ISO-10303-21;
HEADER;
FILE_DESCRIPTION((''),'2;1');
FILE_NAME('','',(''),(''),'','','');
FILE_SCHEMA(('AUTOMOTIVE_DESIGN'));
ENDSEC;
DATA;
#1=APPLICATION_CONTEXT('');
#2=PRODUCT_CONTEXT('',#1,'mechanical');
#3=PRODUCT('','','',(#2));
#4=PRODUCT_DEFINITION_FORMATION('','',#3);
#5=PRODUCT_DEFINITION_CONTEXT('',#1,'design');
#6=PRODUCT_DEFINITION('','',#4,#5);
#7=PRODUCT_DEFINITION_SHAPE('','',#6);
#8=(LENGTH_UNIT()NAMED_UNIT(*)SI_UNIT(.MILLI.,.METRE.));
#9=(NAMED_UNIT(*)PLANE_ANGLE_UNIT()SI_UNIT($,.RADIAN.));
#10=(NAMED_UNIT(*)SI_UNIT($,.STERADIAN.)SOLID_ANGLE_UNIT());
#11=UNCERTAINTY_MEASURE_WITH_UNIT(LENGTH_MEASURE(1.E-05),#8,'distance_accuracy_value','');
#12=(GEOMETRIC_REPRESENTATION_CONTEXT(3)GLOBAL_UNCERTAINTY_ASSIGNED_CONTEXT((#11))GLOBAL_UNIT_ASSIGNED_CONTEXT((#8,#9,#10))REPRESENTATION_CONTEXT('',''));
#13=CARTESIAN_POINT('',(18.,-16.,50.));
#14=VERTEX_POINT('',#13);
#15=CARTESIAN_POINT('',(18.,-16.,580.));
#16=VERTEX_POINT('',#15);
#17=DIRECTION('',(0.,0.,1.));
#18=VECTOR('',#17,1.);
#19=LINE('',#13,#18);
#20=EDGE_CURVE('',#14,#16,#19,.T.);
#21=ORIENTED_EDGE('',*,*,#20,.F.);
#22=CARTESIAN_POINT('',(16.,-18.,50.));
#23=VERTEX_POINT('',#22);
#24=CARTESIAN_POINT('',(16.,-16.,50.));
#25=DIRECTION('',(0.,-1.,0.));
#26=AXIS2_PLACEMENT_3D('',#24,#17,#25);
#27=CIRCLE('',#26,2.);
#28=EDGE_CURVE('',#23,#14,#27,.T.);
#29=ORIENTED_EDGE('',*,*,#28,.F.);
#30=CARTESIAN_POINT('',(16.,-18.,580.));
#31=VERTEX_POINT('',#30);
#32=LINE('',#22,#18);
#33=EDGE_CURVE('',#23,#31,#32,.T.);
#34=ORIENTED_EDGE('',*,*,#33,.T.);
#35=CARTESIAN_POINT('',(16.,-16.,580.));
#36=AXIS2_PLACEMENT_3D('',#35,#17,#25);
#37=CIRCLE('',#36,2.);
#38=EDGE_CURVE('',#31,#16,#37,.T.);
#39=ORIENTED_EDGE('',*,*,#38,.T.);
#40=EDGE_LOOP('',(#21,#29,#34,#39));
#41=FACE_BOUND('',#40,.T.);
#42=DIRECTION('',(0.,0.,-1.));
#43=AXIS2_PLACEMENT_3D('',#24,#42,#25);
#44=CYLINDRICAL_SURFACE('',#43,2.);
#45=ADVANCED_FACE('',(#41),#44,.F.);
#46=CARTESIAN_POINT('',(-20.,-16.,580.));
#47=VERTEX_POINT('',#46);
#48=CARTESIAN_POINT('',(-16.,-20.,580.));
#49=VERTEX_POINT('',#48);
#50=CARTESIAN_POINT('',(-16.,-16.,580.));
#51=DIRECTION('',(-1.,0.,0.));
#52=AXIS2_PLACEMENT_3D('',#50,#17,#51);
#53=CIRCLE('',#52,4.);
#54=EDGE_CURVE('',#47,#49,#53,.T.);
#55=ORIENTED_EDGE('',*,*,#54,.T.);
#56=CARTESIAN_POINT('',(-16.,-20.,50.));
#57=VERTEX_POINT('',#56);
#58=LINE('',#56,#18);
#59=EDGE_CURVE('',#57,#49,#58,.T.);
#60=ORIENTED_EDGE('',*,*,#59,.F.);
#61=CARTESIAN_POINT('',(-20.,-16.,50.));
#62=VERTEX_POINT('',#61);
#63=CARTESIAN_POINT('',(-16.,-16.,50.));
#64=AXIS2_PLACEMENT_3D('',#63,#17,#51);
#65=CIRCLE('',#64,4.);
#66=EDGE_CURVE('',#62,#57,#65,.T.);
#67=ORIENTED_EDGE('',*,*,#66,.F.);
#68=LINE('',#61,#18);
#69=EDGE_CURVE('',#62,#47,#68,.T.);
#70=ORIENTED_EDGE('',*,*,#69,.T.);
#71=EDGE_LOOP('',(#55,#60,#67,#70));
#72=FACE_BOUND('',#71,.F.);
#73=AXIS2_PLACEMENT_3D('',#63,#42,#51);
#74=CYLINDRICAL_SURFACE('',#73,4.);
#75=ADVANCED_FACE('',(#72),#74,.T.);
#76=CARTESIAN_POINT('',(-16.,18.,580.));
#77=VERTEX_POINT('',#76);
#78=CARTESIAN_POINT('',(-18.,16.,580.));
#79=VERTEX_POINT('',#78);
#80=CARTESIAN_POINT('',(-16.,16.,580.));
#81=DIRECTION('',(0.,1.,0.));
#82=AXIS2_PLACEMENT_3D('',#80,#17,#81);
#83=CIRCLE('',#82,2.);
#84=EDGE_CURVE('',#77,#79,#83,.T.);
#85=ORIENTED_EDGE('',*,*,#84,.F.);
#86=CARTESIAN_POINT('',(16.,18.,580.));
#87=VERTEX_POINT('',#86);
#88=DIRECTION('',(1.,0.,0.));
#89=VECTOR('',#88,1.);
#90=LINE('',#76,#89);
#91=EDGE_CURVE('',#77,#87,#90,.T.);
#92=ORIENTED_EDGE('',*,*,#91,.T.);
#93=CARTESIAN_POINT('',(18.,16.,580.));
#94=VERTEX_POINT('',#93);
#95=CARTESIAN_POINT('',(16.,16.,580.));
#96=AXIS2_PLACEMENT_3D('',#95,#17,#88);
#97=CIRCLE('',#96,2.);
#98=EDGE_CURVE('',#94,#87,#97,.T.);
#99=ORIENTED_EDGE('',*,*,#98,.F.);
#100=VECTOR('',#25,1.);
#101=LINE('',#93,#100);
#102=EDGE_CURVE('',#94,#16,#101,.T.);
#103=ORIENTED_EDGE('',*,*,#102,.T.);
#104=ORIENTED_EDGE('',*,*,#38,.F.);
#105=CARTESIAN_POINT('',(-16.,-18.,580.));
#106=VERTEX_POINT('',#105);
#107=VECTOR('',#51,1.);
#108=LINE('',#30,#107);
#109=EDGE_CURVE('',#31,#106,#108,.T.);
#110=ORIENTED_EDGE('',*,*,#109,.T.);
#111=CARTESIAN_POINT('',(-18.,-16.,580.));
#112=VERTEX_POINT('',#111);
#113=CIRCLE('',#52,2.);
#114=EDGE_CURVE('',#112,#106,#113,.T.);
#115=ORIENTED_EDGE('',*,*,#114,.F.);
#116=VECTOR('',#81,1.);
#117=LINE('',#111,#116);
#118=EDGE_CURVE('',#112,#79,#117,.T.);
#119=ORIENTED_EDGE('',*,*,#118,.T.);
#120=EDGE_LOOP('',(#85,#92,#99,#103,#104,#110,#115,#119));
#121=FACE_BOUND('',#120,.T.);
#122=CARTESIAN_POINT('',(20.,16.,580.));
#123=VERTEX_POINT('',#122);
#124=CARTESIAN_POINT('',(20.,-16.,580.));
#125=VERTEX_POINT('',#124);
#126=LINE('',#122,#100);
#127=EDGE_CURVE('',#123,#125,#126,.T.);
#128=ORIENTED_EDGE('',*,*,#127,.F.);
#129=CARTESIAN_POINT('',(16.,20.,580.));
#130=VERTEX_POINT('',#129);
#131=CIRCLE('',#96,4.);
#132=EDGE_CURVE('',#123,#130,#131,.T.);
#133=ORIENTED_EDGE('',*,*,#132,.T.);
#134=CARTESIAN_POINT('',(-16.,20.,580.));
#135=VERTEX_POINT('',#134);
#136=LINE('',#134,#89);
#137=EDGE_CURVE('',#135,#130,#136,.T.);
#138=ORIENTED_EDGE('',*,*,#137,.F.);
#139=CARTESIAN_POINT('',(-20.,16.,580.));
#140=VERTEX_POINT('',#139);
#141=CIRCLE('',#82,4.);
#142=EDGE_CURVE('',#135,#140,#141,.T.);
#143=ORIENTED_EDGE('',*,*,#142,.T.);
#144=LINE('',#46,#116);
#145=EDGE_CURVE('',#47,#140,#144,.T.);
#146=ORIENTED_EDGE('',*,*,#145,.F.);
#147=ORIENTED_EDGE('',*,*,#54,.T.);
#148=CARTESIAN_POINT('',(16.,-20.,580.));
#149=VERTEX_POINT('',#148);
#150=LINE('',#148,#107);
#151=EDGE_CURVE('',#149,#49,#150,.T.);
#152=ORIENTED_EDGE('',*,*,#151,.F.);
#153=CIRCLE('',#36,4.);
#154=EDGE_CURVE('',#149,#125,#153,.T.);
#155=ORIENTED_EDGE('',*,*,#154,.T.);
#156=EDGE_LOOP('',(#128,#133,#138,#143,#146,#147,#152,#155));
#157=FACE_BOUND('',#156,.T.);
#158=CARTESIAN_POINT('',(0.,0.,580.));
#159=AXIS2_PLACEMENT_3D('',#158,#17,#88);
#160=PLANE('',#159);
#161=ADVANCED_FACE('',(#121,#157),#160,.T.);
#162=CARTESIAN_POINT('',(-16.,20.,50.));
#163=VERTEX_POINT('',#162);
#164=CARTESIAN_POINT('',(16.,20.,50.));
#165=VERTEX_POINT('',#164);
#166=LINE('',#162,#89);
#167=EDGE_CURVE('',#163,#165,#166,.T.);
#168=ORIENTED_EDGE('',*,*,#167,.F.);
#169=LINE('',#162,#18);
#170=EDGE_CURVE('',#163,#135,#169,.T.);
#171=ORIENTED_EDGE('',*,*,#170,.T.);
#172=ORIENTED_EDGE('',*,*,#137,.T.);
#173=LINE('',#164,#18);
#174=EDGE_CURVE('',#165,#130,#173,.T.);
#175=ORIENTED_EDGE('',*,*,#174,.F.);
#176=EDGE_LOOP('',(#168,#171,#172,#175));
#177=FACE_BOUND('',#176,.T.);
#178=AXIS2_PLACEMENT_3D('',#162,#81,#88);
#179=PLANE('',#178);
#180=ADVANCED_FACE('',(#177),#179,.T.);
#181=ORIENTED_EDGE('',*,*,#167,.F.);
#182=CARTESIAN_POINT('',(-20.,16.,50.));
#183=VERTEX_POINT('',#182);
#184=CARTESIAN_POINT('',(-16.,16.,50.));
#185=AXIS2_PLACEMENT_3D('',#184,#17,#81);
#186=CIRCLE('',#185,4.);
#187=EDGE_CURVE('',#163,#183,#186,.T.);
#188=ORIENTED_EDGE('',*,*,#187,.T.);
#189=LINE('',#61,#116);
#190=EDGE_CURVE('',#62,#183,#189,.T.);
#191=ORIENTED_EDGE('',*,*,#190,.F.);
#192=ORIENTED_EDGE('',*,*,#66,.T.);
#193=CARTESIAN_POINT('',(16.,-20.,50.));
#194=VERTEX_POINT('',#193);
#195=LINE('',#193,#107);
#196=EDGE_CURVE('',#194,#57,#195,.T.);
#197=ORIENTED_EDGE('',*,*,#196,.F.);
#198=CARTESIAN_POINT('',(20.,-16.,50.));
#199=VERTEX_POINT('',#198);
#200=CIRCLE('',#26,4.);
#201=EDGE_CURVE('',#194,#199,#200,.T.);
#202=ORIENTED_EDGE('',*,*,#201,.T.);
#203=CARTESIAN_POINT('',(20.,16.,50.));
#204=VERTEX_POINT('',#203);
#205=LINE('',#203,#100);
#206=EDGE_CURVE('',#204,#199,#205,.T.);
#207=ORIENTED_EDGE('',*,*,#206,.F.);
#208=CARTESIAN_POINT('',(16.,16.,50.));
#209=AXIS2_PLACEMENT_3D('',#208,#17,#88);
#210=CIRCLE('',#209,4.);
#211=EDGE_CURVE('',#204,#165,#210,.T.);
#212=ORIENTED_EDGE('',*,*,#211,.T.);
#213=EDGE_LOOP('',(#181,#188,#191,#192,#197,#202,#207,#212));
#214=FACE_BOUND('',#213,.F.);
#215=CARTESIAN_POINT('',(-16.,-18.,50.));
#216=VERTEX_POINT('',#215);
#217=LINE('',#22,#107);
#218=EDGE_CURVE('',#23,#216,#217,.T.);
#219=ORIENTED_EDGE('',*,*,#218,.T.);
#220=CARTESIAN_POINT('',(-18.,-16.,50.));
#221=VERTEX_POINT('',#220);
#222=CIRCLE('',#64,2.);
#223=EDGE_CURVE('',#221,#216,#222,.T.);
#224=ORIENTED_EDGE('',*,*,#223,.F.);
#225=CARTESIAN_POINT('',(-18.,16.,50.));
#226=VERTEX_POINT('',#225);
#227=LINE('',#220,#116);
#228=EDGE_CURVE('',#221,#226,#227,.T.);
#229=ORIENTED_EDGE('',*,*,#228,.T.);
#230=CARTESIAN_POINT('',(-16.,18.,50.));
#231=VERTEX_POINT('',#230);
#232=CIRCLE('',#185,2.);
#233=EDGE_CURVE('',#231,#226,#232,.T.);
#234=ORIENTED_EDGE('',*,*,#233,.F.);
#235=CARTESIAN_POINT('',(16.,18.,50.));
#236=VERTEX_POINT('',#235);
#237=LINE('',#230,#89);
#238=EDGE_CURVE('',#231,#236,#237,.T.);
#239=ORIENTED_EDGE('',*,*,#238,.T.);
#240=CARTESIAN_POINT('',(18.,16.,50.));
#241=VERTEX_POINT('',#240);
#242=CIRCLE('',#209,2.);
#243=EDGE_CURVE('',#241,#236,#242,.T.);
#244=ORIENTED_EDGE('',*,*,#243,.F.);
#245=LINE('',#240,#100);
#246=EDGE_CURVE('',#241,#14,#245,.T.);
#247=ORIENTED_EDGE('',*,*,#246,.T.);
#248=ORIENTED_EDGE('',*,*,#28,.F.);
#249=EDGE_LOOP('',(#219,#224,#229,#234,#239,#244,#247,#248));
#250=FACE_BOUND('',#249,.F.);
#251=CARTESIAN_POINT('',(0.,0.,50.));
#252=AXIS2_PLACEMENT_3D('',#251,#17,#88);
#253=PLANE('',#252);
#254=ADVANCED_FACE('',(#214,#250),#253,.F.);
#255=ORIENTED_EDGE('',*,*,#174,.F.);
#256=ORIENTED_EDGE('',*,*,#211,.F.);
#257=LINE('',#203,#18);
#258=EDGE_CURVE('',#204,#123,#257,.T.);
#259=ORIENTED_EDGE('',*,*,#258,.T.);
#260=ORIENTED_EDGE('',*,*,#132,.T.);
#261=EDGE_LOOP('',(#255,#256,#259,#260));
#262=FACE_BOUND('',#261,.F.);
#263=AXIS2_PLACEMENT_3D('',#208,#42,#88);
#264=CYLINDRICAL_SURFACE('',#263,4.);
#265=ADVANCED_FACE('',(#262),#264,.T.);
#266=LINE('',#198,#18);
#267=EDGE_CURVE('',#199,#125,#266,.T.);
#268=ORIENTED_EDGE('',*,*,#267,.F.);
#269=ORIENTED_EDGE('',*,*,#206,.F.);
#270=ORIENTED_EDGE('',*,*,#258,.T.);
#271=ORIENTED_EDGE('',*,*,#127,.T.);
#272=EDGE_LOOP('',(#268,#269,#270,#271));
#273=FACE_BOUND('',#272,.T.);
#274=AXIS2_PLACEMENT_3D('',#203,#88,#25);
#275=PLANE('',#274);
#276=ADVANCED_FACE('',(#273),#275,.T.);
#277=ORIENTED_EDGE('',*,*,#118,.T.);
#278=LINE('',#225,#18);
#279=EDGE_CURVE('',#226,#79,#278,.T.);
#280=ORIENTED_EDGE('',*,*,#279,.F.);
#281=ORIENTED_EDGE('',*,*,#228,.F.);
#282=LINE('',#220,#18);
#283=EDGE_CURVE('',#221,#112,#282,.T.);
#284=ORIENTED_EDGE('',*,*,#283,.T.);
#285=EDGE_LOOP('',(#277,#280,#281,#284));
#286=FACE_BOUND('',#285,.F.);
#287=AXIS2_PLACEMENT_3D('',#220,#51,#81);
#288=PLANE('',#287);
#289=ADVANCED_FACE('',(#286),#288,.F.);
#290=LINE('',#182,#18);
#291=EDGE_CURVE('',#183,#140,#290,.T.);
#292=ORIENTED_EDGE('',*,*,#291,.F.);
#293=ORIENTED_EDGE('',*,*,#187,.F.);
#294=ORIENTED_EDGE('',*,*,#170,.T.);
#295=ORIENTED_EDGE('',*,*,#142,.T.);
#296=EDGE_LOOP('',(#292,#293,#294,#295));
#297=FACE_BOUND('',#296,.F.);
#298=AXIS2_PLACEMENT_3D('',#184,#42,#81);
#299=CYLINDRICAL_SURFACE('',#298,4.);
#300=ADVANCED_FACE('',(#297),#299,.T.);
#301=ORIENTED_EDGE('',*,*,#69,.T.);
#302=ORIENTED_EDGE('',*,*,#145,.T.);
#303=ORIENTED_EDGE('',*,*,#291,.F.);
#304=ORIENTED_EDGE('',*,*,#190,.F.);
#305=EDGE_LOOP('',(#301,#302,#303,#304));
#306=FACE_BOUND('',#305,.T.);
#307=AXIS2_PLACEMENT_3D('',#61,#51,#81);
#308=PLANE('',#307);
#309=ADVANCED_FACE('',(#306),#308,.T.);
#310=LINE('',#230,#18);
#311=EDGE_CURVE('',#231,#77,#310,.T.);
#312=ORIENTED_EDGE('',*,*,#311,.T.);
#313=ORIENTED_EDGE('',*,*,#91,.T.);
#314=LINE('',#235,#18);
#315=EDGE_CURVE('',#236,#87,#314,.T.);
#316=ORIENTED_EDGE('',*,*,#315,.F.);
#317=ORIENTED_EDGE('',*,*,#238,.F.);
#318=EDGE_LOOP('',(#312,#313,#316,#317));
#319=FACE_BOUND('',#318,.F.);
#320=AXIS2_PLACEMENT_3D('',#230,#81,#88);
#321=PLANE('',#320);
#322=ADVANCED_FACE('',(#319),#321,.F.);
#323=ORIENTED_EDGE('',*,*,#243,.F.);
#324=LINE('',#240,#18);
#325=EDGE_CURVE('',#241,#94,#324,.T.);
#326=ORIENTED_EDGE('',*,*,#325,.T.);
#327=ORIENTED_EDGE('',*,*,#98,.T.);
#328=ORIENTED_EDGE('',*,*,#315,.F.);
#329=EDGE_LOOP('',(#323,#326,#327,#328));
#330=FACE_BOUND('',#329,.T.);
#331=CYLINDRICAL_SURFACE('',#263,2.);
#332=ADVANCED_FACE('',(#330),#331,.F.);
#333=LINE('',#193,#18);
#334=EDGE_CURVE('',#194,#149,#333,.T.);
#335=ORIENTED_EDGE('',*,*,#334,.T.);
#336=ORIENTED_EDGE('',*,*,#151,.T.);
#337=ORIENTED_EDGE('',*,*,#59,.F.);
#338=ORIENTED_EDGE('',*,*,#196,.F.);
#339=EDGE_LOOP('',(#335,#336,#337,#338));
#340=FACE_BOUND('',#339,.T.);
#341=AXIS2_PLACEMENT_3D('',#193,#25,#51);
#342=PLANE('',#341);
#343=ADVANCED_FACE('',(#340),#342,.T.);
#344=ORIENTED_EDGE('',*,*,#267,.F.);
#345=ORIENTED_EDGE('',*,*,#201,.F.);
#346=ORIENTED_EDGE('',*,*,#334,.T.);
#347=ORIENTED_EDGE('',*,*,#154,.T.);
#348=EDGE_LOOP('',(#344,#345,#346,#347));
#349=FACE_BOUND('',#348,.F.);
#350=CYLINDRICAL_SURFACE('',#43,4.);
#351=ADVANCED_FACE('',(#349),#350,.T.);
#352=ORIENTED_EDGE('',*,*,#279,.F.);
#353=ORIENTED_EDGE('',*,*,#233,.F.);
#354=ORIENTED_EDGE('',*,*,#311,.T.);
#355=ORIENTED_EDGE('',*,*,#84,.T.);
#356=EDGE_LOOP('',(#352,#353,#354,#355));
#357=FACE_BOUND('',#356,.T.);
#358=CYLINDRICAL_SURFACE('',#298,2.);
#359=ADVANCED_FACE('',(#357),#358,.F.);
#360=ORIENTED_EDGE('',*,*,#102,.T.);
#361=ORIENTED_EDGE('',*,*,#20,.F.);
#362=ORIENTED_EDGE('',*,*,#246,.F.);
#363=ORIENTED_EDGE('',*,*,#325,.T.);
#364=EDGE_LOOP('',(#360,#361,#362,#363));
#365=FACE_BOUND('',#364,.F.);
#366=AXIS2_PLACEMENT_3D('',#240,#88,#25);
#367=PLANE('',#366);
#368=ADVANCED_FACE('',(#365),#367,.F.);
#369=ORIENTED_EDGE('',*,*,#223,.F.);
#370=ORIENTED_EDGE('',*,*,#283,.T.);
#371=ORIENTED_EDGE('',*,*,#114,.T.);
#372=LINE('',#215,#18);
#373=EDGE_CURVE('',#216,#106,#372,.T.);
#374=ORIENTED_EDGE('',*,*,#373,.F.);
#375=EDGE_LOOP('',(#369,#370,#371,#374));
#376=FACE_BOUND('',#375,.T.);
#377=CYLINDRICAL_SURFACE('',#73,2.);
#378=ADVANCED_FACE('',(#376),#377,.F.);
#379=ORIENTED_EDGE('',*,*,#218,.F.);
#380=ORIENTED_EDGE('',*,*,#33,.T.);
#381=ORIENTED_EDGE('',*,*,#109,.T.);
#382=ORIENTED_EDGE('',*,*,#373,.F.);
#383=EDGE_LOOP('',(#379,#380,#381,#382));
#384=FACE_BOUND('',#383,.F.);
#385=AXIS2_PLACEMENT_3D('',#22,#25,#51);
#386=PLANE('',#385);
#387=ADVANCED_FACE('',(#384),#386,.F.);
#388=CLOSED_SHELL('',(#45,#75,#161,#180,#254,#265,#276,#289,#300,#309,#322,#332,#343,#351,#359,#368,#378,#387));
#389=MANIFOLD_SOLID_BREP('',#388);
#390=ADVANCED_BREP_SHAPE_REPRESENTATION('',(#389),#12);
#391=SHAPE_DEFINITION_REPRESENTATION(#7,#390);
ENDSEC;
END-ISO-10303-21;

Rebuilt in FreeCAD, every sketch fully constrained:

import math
import FreeCAD as App
import Part
import Sketcher

V = App.Vector

doc = App.newDocument("Part")
body = doc.addObject("PartDesign::Body", "Body")

sketch1 = body.newObject("Sketcher::SketchObject", "Sketch")
sketch1.AttachmentSupport = (doc.getObject("XY_Plane"), [""])
sketch1.MapMode = "FlatFace"
sketch1.AttachmentOffset = App.Placement(V(0, 0, 50), App.Rotation())
sketch1.addGeometry([
    Part.LineSegment(V(-20, 16, 0), V(-20, -16, 0)),
    Part.ArcOfCircle(Part.Circle(V(-16, -16, 0), V(0, 0, 1), 4), math.radians(180), math.radians(270)),
    Part.LineSegment(V(-16, -20, 0), V(16, -20, 0)),
    Part.ArcOfCircle(Part.Circle(V(16, -16, 0), V(0, 0, 1), 4), math.radians(-90), math.radians(0)),
    Part.LineSegment(V(20, -16, 0), V(20, 16, 0)),
    Part.ArcOfCircle(Part.Circle(V(16, 16, 0), V(0, 0, 1), 4), math.radians(0), math.radians(90)),
    Part.LineSegment(V(16, 20, 0), V(-16, 20, 0)),
    Part.ArcOfCircle(Part.Circle(V(-16, 16, 0), V(0, 0, 1), 4), math.radians(90), math.radians(180)),
    Part.ArcOfCircle(Part.Circle(V(-16, 16, 0), V(0, 0, 1), 2), math.radians(90), math.radians(180)),
    Part.LineSegment(V(-16, 18, 0), V(16, 18, 0)),
    Part.ArcOfCircle(Part.Circle(V(16, 16, 0), V(0, 0, 1), 2), math.radians(0), math.radians(90)),
    Part.LineSegment(V(18, 16, 0), V(18, -16, 0)),
    Part.ArcOfCircle(Part.Circle(V(16, -16, 0), V(0, 0, 1), 2), math.radians(-90), math.radians(0)),
    Part.LineSegment(V(16, -18, 0), V(-16, -18, 0)),
    Part.ArcOfCircle(Part.Circle(V(-16, -16, 0), V(0, 0, 1), 2), math.radians(180), math.radians(270)),
    Part.LineSegment(V(-18, -16, 0), V(-18, 16, 0)),
], False)
sketch1.addConstraint([
    Sketcher.Constraint("Tangent", 0, 2, 1, 1),
    Sketcher.Constraint("Tangent", 1, 2, 2, 1),
    Sketcher.Constraint("Tangent", 2, 2, 3, 1),
    Sketcher.Constraint("Tangent", 3, 2, 4, 1),
    Sketcher.Constraint("Tangent", 4, 2, 5, 1),
    Sketcher.Constraint("Tangent", 5, 2, 6, 1),
    Sketcher.Constraint("Tangent", 6, 2, 7, 1),
    Sketcher.Constraint("Tangent", 7, 2, 0, 1),
    Sketcher.Constraint("Tangent", 8, 1, 9, 1),
    Sketcher.Constraint("Tangent", 9, 2, 10, 2),
    Sketcher.Constraint("Tangent", 10, 1, 11, 1),
    Sketcher.Constraint("Tangent", 11, 2, 12, 2),
    Sketcher.Constraint("Tangent", 12, 1, 13, 1),
    Sketcher.Constraint("Tangent", 13, 2, 14, 2),
    Sketcher.Constraint("Tangent", 14, 1, 15, 1),
    Sketcher.Constraint("Tangent", 15, 2, 8, 2),
    Sketcher.Constraint("Vertical", 0),
    Sketcher.Constraint("Horizontal", 2),
    Sketcher.Constraint("Vertical", 4),
    Sketcher.Constraint("Horizontal", 6),
    Sketcher.Constraint("Horizontal", 9),
    Sketcher.Constraint("Vertical", 11),
    Sketcher.Constraint("Horizontal", 13),
    Sketcher.Constraint("Vertical", 15),
    Sketcher.Constraint("Coincident", 8, 3, 7, 3),
    Sketcher.Constraint("Coincident", 10, 3, 5, 3),
    Sketcher.Constraint("Coincident", 12, 3, 3, 3),
    Sketcher.Constraint("Equal", 1, 3),
    Sketcher.Constraint("Equal", 3, 5),
    Sketcher.Constraint("Equal", 5, 7),
    Sketcher.Constraint("Equal", 12, 14),
    Sketcher.Constraint("Symmetric", 1, 3, 5, 3, -1, 1),
    Sketcher.Constraint("Equal", 13, 0),
    Sketcher.Constraint("Radius", 1, 4.0),
    Sketcher.Constraint("Radius", 8, 2.0),
    Sketcher.Constraint("DistanceX", 0, 2, -1, 1, 20.0),
])
pad1 = body.newObject("PartDesign::Pad", "Pad")
pad1.Profile = sketch1
pad1.Length = 530

doc.recompute()
